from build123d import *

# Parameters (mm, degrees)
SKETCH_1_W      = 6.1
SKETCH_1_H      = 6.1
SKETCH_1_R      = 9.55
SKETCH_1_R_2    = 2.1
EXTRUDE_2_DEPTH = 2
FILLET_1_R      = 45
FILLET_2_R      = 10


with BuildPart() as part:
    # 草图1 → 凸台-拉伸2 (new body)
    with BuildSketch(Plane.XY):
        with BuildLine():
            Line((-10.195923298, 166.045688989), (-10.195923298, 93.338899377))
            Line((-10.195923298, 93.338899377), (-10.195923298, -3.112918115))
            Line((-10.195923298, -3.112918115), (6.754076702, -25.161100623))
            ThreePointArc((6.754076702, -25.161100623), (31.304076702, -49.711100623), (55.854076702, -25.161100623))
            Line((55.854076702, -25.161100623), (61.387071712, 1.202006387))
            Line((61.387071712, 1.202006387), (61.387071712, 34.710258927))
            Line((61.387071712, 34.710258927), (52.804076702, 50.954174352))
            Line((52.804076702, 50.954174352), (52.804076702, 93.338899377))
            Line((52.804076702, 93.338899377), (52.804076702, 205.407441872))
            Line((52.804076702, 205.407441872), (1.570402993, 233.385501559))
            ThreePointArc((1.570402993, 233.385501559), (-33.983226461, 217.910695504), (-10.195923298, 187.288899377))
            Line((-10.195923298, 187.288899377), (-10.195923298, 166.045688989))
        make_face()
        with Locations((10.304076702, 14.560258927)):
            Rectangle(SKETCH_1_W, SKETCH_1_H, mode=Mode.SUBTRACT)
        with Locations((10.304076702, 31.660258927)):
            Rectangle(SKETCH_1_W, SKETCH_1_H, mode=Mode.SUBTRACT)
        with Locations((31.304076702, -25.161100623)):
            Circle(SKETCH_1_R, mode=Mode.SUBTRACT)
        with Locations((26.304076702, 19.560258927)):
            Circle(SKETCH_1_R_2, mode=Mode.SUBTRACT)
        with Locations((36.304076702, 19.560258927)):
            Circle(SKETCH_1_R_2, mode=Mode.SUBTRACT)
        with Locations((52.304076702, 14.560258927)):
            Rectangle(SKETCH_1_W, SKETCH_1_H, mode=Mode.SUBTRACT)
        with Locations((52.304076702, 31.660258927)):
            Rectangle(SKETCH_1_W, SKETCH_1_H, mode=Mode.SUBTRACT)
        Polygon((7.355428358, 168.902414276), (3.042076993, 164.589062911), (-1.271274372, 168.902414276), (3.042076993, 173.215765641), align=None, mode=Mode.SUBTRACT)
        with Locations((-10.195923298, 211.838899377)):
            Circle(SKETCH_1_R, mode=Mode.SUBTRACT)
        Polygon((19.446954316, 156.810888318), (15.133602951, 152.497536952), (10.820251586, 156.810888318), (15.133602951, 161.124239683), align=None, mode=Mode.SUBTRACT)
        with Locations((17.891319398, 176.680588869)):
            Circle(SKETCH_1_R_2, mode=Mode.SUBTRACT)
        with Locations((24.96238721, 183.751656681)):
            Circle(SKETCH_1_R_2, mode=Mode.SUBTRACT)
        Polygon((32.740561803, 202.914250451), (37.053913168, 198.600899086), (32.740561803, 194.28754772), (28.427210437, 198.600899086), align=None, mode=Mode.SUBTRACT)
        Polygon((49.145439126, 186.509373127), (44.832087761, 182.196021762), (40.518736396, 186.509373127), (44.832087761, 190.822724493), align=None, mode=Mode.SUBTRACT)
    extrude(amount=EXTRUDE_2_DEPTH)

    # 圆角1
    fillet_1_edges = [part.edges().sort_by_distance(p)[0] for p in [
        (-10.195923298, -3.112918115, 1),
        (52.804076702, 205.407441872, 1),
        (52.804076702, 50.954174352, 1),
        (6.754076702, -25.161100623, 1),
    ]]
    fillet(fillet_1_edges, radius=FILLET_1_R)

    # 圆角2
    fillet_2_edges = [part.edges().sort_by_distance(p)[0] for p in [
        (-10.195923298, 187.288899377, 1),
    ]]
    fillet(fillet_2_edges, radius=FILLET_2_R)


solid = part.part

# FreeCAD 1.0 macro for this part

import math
import FreeCAD as App
import Part
import Sketcher
from FreeCAD import Vector
Q = App.Units.Quantity


def edges_at(feature, points):
    """Names of the edges that pass closest to the given points."""
    edges = feature.Shape.Edges
    near = lambda p: min(range(len(edges)), key=lambda i: edges[i].distToShape(Part.Vertex(*p))[0])
    return sorted({f"Edge{near(p) + 1}" for p in points})

doc = App.newDocument("Part")
body = doc.addObject("PartDesign::Body", "Body")

# Sketch on XY plane
sketch1 = body.newObject("Sketcher::SketchObject", "Sketch")
sketch1.AttachmentSupport = (doc.getObject("XY_Plane"), [""])
sketch1.MapMode = "FlatFace"
sketch1.addGeometry(Part.LineSegment(Vector(-10.195923, -3.112918, 0), Vector(6.754077, -25.161101, 0)), False)
sketch1.addGeometry(Part.ArcOfCircle(Part.Circle(Vector(31.304077, -25.161101, 0), Vector(0, 0, 1), 24.55), math.radians(180), math.radians(360)), False)
sketch1.addGeometry(Part.LineSegment(Vector(55.854077, -25.161101, 0), Vector(61.387072, 1.202006, 0)), False)
sketch1.addGeometry(Part.LineSegment(Vector(61.387072, 1.202006, 0), Vector(61.387072, 34.710259, 0)), False)
sketch1.addGeometry(Part.LineSegment(Vector(61.387072, 34.710259, 0), Vector(52.804077, 50.954174, 0)), False)
sketch1.addGeometry(Part.LineSegment(Vector(52.804077, 50.954174, 0), Vector(52.804077, 205.407442, 0)), False)
sketch1.addGeometry(Part.LineSegment(Vector(52.804077, 205.407442, 0), Vector(1.570403, 233.385502, 0)), False)
sketch1.addGeometry(Part.ArcOfCircle(Part.Circle(Vector(-10.195923, 211.838899, 0), Vector(0, 0, 1), 24.55), math.radians(61.361606), math.radians(270)), False)
sketch1.addGeometry(Part.LineSegment(Vector(-10.195923, 187.288899, 0), Vector(-10.195923, -3.112918, 0)), False)
sketch1.addGeometry(Part.LineSegment(Vector(13.354077, 11.510259, 0), Vector(7.254077, 11.510259, 0)), False)
sketch1.addGeometry(Part.LineSegment(Vector(7.254077, 11.510259, 0), Vector(7.254077, 17.610259, 0)), False)
sketch1.addGeometry(Part.LineSegment(Vector(7.254077, 17.610259, 0), Vector(13.354077, 17.610259, 0)), False)
sketch1.addGeometry(Part.LineSegment(Vector(13.354077, 17.610259, 0), Vector(13.354077, 11.510259, 0)), False)
sketch1.addGeometry(Part.LineSegment(Vector(13.354077, 28.610259, 0), Vector(7.254077, 28.610259, 0)), False)
sketch1.addGeometry(Part.LineSegment(Vector(7.254077, 28.610259, 0), Vector(7.254077, 34.710259, 0)), False)
sketch1.addGeometry(Part.LineSegment(Vector(7.254077, 34.710259, 0), Vector(13.354077, 34.710259, 0)), False)
sketch1.addGeometry(Part.LineSegment(Vector(13.354077, 34.710259, 0), Vector(13.354077, 28.610259, 0)), False)
sketch1.addGeometry(Part.Circle(Vector(31.304077, -25.161101, 0), Vector(0, 0, 1), 9.55), False)
sketch1.addGeometry(Part.Circle(Vector(26.304077, 19.560259, 0), Vector(0, 0, 1), 2.1), False)
sketch1.addGeometry(Part.Circle(Vector(36.304077, 19.560259, 0), Vector(0, 0, 1), 2.1), False)
sketch1.addGeometry(Part.LineSegment(Vector(55.354077, 11.510259, 0), Vector(49.254077, 11.510259, 0)), False)
sketch1.addGeometry(Part.LineSegment(Vector(49.254077, 11.510259, 0), Vector(49.254077, 17.610259, 0)), False)
sketch1.addGeometry(Part.LineSegment(Vector(49.254077, 17.610259, 0), Vector(55.354077, 17.610259, 0)), False)
sketch1.addGeometry(Part.LineSegment(Vector(55.354077, 17.610259, 0), Vector(55.354077, 11.510259, 0)), False)
sketch1.addGeometry(Part.LineSegment(Vector(55.354077, 28.610259, 0), Vector(49.254077, 28.610259, 0)), False)
sketch1.addGeometry(Part.LineSegment(Vector(49.254077, 28.610259, 0), Vector(49.254077, 34.710259, 0)), False)
sketch1.addGeometry(Part.LineSegment(Vector(49.254077, 34.710259, 0), Vector(55.354077, 34.710259, 0)), False)
sketch1.addGeometry(Part.LineSegment(Vector(55.354077, 34.710259, 0), Vector(55.354077, 28.610259, 0)), False)
sketch1.addGeometry(Part.LineSegment(Vector(15.133603, 161.12424, 0), Vector(19.446954, 156.810888, 0)), False)
sketch1.addGeometry(Part.LineSegment(Vector(19.446954, 156.810888, 0), Vector(15.133603, 152.497537, 0)), False)
sketch1.addGeometry(Part.LineSegment(Vector(15.133603, 152.497537, 0), Vector(10.820252, 156.810888, 0)), False)
sketch1.addGeometry(Part.LineSegment(Vector(10.820252, 156.810888, 0), Vector(15.133603, 161.12424, 0)), False)
sketch1.addGeometry(Part.Circle(Vector(-10.195923, 211.838899, 0), Vector(0, 0, 1), 9.55), False)
sketch1.addGeometry(Part.LineSegment(Vector(3.042077, 173.215766, 0), Vector(7.355428, 168.902414, 0)), False)
sketch1.addGeometry(Part.LineSegment(Vector(7.355428, 168.902414, 0), Vector(3.042077, 164.589063, 0)), False)
sketch1.addGeometry(Part.LineSegment(Vector(3.042077, 164.589063, 0), Vector(-1.271274, 168.902414, 0)), False)
sketch1.addGeometry(Part.LineSegment(Vector(-1.271274, 168.902414, 0), Vector(3.042077, 173.215766, 0)), False)
sketch1.addGeometry(Part.Circle(Vector(17.891319, 176.680589, 0), Vector(0, 0, 1), 2.1), False)
sketch1.addGeometry(Part.Circle(Vector(24.962387, 183.751657, 0), Vector(0, 0, 1), 2.1), False)
sketch1.addGeometry(Part.LineSegment(Vector(28.42721, 198.600899, 0), Vector(32.740562, 202.91425, 0)), False)
sketch1.addGeometry(Part.LineSegment(Vector(32.740562, 202.91425, 0), Vector(37.053913, 198.600899, 0)), False)
sketch1.addGeometry(Part.LineSegment(Vector(37.053913, 198.600899, 0), Vector(32.740562, 194.287548, 0)), False)
sketch1.addGeometry(Part.LineSegment(Vector(32.740562, 194.287548, 0), Vector(28.42721, 198.600899, 0)), False)
sketch1.addGeometry(Part.LineSegment(Vector(44.832088, 190.822724, 0), Vector(49.145439, 186.509373, 0)), False)
sketch1.addGeometry(Part.LineSegment(Vector(49.145439, 186.509373, 0), Vector(44.832088, 182.196022, 0)), False)
sketch1.addGeometry(Part.LineSegment(Vector(44.832088, 182.196022, 0), Vector(40.518736, 186.509373, 0)), False)
sketch1.addGeometry(Part.LineSegment(Vector(40.518736, 186.509373, 0), Vector(44.832088, 190.822724, 0)), False)
sketch1.addConstraint(Sketcher.Constraint("Coincident", 0, 2, 1, 1))
sketch1.addConstraint(Sketcher.Constraint("Coincident", 1, 2, 2, 1))
sketch1.addConstraint(Sketcher.Constraint("Coincident", 2, 2, 3, 1))
sketch1.addConstraint(Sketcher.Constraint("Coincident", 3, 2, 4, 1))
sketch1.addConstraint(Sketcher.Constraint("Coincident", 4, 2, 5, 1))
sketch1.addConstraint(Sketcher.Constraint("Coincident", 5, 2, 6, 1))
sketch1.addConstraint(Sketcher.Constraint("Tangent", 6, 2, 7, 1))
sketch1.addConstraint(Sketcher.Constraint("Coincident", 7, 2, 8, 1))
sketch1.addConstraint(Sketcher.Constraint("Coincident", 8, 2, 0, 1))
sketch1.addConstraint(Sketcher.Constraint("Coincident", 9, 2, 10, 1))
sketch1.addConstraint(Sketcher.Constraint("Coincident", 10, 2, 11, 1))
sketch1.addConstraint(Sketcher.Constraint("Coincident", 11, 2, 12, 1))
sketch1.addConstraint(Sketcher.Constraint("Coincident", 12, 2, 9, 1))
sketch1.addConstraint(Sketcher.Constraint("Coincident", 13, 2, 14, 1))
sketch1.addConstraint(Sketcher.Constraint("Coincident", 14, 2, 15, 1))
sketch1.addConstraint(Sketcher.Constraint("Coincident", 15, 2, 16, 1))
sketch1.addConstraint(Sketcher.Constraint("Coincident", 16, 2, 13, 1))
sketch1.addConstraint(Sketcher.Constraint("Coincident", 20, 2, 21, 1))
sketch1.addConstraint(Sketcher.Constraint("Coincident", 21, 2, 22, 1))
sketch1.addConstraint(Sketcher.Constraint("Coincident", 22, 2, 23, 1))
sketch1.addConstraint(Sketcher.Constraint("Coincident", 23, 2, 20, 1))
sketch1.addConstraint(Sketcher.Constraint("Coincident", 24, 2, 25, 1))
sketch1.addConstraint(Sketcher.Constraint("Coincident", 25, 2, 26, 1))
sketch1.addConstraint(Sketcher.Constraint("Coincident", 26, 2, 27, 1))
sketch1.addConstraint(Sketcher.Constraint("Coincident", 27, 2, 24, 1))
sketch1.addConstraint(Sketcher.Constraint("Coincident", 28, 2, 29, 1))
sketch1.addConstraint(Sketcher.Constraint("Coincident", 29, 2, 30, 1))
sketch1.addConstraint(Sketcher.Constraint("Coincident", 30, 2, 31, 1))
sketch1.addConstraint(Sketcher.Constraint("Coincident", 31, 2, 28, 1))
sketch1.addConstraint(Sketcher.Constraint("Coincident", 33, 2, 34, 1))
sketch1.addConstraint(Sketcher.Constraint("Coincident", 34, 2, 35, 1))
sketch1.addConstraint(Sketcher.Constraint("Coincident", 35, 2, 36, 1))
sketch1.addConstraint(Sketcher.Constraint("Coincident", 36, 2, 33, 1))
sketch1.addConstraint(Sketcher.Constraint("Coincident", 39, 2, 40, 1))
sketch1.addConstraint(Sketcher.Constraint("Coincident", 40, 2, 41, 1))
sketch1.addConstraint(Sketcher.Constraint("Coincident", 41, 2, 42, 1))
sketch1.addConstraint(Sketcher.Constraint("Coincident", 42, 2, 39, 1))
sketch1.addConstraint(Sketcher.Constraint("Coincident", 43, 2, 44, 1))
sketch1.addConstraint(Sketcher.Constraint("Coincident", 44, 2, 45, 1))
sketch1.addConstraint(Sketcher.Constraint("Coincident", 45, 2, 46, 1))
sketch1.addConstraint(Sketcher.Constraint("Coincident", 46, 2, 43, 1))
sketch1.addConstraint(Sketcher.Constraint("Vertical", 3))
sketch1.addConstraint(Sketcher.Constraint("Vertical", 5))
sketch1.addConstraint(Sketcher.Constraint("Vertical", 8))
sketch1.addConstraint(Sketcher.Constraint("Horizontal", 9))
sketch1.addConstraint(Sketcher.Constraint("Vertical", 10))
sketch1.addConstraint(Sketcher.Constraint("Horizontal", 11))
sketch1.addConstraint(Sketcher.Constraint("Vertical", 12))
sketch1.addConstraint(Sketcher.Constraint("Horizontal", 13))
sketch1.addConstraint(Sketcher.Constraint("Vertical", 14))
sketch1.addConstraint(Sketcher.Constraint("Horizontal", 15))
sketch1.addConstraint(Sketcher.Constraint("Vertical", 16))
sketch1.addConstraint(Sketcher.Constraint("Horizontal", 20))
sketch1.addConstraint(Sketcher.Constraint("Vertical", 21))
sketch1.addConstraint(Sketcher.Constraint("Horizontal", 22))
sketch1.addConstraint(Sketcher.Constraint("Vertical", 23))
sketch1.addConstraint(Sketcher.Constraint("Horizontal", 24))
sketch1.addConstraint(Sketcher.Constraint("Vertical", 25))
sketch1.addConstraint(Sketcher.Constraint("Horizontal", 26))
sketch1.addConstraint(Sketcher.Constraint("Vertical", 27))
sketch1.addConstraint(Sketcher.Constraint("Coincident", 17, 3, 1, 3))
sketch1.addConstraint(Sketcher.Constraint("Coincident", 32, 3, 7, 3))
sketch1.addConstraint(Sketcher.Constraint("Equal", 1, 7))
sketch1.addConstraint(Sketcher.Constraint("Equal", 18, 19))
sketch1.addConstraint(Sketcher.Constraint("Equal", 17, 32))
sketch1.addConstraint(Sketcher.Constraint("Equal", 19, 37))
sketch1.addConstraint(Sketcher.Constraint("Equal", 37, 38))
sketch1.addConstraint(Sketcher.Constraint("Perpendicular", 28, 29))
sketch1.addConstraint(Sketcher.Constraint("Perpendicular", 29, 30))
sketch1.addConstraint(Sketcher.Constraint("Perpendicular", 30, 31))
sketch1.addConstraint(Sketcher.Constraint("Perpendicular", 31, 33))
sketch1.addConstraint(Sketcher.Constraint("Perpendicular", 33, 34))
sketch1.addConstraint(Sketcher.Constraint("Perpendicular", 34, 35))
sketch1.addConstraint(Sketcher.Constraint("Perpendicular", 35, 36))
sketch1.addConstraint(Sketcher.Constraint("Parallel", 36, 39))
sketch1.addConstraint(Sketcher.Constraint("Perpendicular", 39, 40))
sketch1.addConstraint(Sketcher.Constraint("Perpendicular", 40, 41))
sketch1.addConstraint(Sketcher.Constraint("Perpendicular", 41, 42))
sketch1.addConstraint(Sketcher.Constraint("Parallel", 42, 43))
sketch1.addConstraint(Sketcher.Constraint("Perpendicular", 43, 44))
sketch1.addConstraint(Sketcher.Constraint("Perpendicular", 44, 45))
sketch1.addConstraint(Sketcher.Constraint("Perpendicular", 45, 46))
sketch1.addConstraint(Sketcher.Constraint("Horizontal", 18, 3, 19, 3))
sketch1.addConstraint(Sketcher.Constraint("Horizontal", 17, 3, 0, 2))
sketch1.addConstraint(Sketcher.Constraint("Horizontal", 0, 2, 1, 2))
sketch1.addConstraint(Sketcher.Constraint("Horizontal", 3, 2, 14, 2))
sketch1.addConstraint(Sketcher.Constraint("Horizontal", 12, 2, 20, 2))
sketch1.addConstraint(Sketcher.Constraint("Horizontal", 11, 2, 21, 2))
sketch1.addConstraint(Sketcher.Constraint("Horizontal", 16, 2, 24, 2))
sketch1.addConstraint(Sketcher.Constraint("Horizontal", 15, 2, 25, 2))
sketch1.addConstraint(Sketcher.Constraint("Horizontal", 28, 2, 30, 2))
sketch1.addConstraint(Sketcher.Constraint("Horizontal", 33, 2, 35, 2))
sketch1.addConstraint(Sketcher.Constraint("Horizontal", 40, 2, 42, 2))
sketch1.addConstraint(Sketcher.Constraint("Horizontal", 43, 2, 45, 2))
sketch1.addConstraint(Sketcher.Constraint("Vertical", 32, 3, 7, 2))
sketch1.addConstraint(Sketcher.Constraint("Vertical", 10, 2, 13, 2))
sketch1.addConstraint(Sketcher.Constraint("Vertical", 12, 2, 15, 2))
sketch1.addConstraint(Sketcher.Constraint("Vertical", 21, 2, 24, 2))
sketch1.addConstraint(Sketcher.Constraint("Vertical", 23, 2, 26, 2))
sketch1.addConstraint(Sketcher.Constraint("Vertical", 29, 2, 31, 2))
sketch1.addConstraint(Sketcher.Constraint("Equal", 15, 20))
sketch1.addConstraint(Sketcher.Constraint("Equal", 26, 10))
sketch1.addConstraint(Sketcher.Constraint("Equal", 12, 14))
sketch1.addConstraint(Sketcher.Constraint("Equal", 31, 33))
sketch1.addConstraint(Sketcher.Constraint("Equal", 36, 39))
sketch1.addConstraint(Sketcher.Constraint("Equal", 42, 43))
sketch1.addConstraint(Sketcher.Constraint("Diameter", 17, Q("19.1 mm")))
sketch1.addConstraint(Sketcher.Constraint("Diameter", 18, Q("4.2 mm")))
sketch1.addConstraint(Sketcher.Constraint("Radius", 1, Q("24.55 mm")))
sketch1.addConstraint(Sketcher.Constraint("DistanceX", 9, 2, 9, 1, Q("6.1 mm")))
sketch1.addConstraint(Sketcher.Constraint("DistanceY", 1, 3, 7, 3, Q("237 mm")))
sketch1.addConstraint(Sketcher.Constraint("DistanceX", 18, 3, 1, 3, Q("5 mm")))
sketch1.addConstraint(Sketcher.Constraint("DistanceX", 18, 3, 19, 3, Q("10 mm")))
sketch1.addConstraint(Sketcher.Constraint("DistanceX", 7, 3, 5, 2, Q("63 mm")))
sketch1.addConstraint(Sketcher.Constraint("DistanceY", 10, 2, 13, 2, Q("11 mm")))
sketch1.addConstraint(Sketcher.Constraint("Distance", 28, Q("6.1 mm")))
sketch1.addConstraint(Sketcher.Constraint("DistanceX", 7, 3, 1, 3, Q("41.5 mm")))
sketch1.addConstraint(Sketcher.Constraint("DistanceX", 0, 2, 9, 2, Q("0.5 mm")))
sketch1.addConstraint(Sketcher.Constraint("DistanceX", 12, 2, 20, 2, Q("35.9 mm")))
sketch1.addConstraint(Sketcher.Constraint("DistanceY", 19, 3, 3, 2, Q("15.15 mm")))
sketch1.addConstraint(Sketcher.Constraint("DistanceY", 1, 3, -1, 1, Q("25.161101 mm")))
sketch1.addConstraint(Sketcher.Constraint("DistanceY", -1, 1, 6, 2, Q("233.385502 mm")))
sketch1.addConstraint(Sketcher.Constraint("DistanceY", -1, 1, 40, 2, Q("198.600899 mm")))
sketch1.addConstraint(Sketcher.Constraint("DistanceY", 28, 2, 37, 3, Q("19.869701 mm")))
sketch1.addConstraint(Sketcher.Constraint("DistanceX", 38, 3, 44, 2, Q("19.869701 mm")))
sketch1.addConstraint(Sketcher.Constraint("Distance", 4, Q("18.37206 mm")))
sketch1.addConstraint(Sketcher.Constraint("DistanceY", 3, 1, 3, 2, Q("33.508253 mm")))
sketch1.addConstraint(Sketcher.Constraint("DistanceY", 5, 1, 5, 2, Q("154.453268 mm")))
sketch1.addConstraint(Sketcher.Constraint("DistanceY", 8, 2, 8, 1, Q("190.401817 mm")))
sketch1.addConstraint(Sketcher.Constraint("DistanceY", -1, 1, 18, 3, Q("19.560259 mm")))
sketch1.addConstraint(Sketcher.Constraint("DistanceX", -1, 1, 37, 3, Q("17.891319 mm")))
sketch1.addConstraint(Sketcher.Constraint("DistanceY", -1, 1, 37, 3, Q("176.680589 mm")))
sketch1.addConstraint(Sketcher.Constraint("DistanceX", -1, 1, 2, 2, Q("61.387072 mm")))
sketch1.addConstraint(Sketcher.Constraint("DistanceX", -1, 1, 30, 2, Q("10.820252 mm")))
sketch1.addConstraint(Sketcher.Constraint("DistanceX", -1, 1, 33, 2, Q("7.355428 mm")))
sketch1.addConstraint(Sketcher.Constraint("DistanceX", -1, 1, 39, 2, Q("32.740562 mm")))
sketch1.addConstraint(Sketcher.Constraint("DistanceX", -1, 1, 43, 2, Q("49.145439 mm")))
sketch1.addConstraint(Sketcher.Constraint("DistanceY", -1, 1, 44, 2, Q("182.196022 mm")))
sketch1.addConstraint(Sketcher.Constraint("DistanceY", 28, 2, 38, 3, Q("26.940768 mm")))
sketch1.addConstraint(Sketcher.Constraint("DistanceY", -1, 1, 33, 2, Q("168.902414 mm")))
pad1 = body.newObject("PartDesign::Pad", "Pad")
pad1.Profile = sketch1
pad1.Length = 2
doc.recompute()

fillet = body.newObject("PartDesign::Fillet", "Fillet")
fillet.Base = (pad1, edges_at(pad1, [
    (-10.196, -3.113, 1),
    (52.804, 205.407, 1),
    (52.804, 50.954, 1),
    (6.754, -25.161, 1),
]))
fillet.Radius = 45
doc.recompute()

fillet2 = body.newObject("PartDesign::Fillet", "Fillet001")
fillet2.Base = (fillet, edges_at(fillet, [(-10.196, 187.289, 1)]))
fillet2.Radius = 10

doc.recompute()
